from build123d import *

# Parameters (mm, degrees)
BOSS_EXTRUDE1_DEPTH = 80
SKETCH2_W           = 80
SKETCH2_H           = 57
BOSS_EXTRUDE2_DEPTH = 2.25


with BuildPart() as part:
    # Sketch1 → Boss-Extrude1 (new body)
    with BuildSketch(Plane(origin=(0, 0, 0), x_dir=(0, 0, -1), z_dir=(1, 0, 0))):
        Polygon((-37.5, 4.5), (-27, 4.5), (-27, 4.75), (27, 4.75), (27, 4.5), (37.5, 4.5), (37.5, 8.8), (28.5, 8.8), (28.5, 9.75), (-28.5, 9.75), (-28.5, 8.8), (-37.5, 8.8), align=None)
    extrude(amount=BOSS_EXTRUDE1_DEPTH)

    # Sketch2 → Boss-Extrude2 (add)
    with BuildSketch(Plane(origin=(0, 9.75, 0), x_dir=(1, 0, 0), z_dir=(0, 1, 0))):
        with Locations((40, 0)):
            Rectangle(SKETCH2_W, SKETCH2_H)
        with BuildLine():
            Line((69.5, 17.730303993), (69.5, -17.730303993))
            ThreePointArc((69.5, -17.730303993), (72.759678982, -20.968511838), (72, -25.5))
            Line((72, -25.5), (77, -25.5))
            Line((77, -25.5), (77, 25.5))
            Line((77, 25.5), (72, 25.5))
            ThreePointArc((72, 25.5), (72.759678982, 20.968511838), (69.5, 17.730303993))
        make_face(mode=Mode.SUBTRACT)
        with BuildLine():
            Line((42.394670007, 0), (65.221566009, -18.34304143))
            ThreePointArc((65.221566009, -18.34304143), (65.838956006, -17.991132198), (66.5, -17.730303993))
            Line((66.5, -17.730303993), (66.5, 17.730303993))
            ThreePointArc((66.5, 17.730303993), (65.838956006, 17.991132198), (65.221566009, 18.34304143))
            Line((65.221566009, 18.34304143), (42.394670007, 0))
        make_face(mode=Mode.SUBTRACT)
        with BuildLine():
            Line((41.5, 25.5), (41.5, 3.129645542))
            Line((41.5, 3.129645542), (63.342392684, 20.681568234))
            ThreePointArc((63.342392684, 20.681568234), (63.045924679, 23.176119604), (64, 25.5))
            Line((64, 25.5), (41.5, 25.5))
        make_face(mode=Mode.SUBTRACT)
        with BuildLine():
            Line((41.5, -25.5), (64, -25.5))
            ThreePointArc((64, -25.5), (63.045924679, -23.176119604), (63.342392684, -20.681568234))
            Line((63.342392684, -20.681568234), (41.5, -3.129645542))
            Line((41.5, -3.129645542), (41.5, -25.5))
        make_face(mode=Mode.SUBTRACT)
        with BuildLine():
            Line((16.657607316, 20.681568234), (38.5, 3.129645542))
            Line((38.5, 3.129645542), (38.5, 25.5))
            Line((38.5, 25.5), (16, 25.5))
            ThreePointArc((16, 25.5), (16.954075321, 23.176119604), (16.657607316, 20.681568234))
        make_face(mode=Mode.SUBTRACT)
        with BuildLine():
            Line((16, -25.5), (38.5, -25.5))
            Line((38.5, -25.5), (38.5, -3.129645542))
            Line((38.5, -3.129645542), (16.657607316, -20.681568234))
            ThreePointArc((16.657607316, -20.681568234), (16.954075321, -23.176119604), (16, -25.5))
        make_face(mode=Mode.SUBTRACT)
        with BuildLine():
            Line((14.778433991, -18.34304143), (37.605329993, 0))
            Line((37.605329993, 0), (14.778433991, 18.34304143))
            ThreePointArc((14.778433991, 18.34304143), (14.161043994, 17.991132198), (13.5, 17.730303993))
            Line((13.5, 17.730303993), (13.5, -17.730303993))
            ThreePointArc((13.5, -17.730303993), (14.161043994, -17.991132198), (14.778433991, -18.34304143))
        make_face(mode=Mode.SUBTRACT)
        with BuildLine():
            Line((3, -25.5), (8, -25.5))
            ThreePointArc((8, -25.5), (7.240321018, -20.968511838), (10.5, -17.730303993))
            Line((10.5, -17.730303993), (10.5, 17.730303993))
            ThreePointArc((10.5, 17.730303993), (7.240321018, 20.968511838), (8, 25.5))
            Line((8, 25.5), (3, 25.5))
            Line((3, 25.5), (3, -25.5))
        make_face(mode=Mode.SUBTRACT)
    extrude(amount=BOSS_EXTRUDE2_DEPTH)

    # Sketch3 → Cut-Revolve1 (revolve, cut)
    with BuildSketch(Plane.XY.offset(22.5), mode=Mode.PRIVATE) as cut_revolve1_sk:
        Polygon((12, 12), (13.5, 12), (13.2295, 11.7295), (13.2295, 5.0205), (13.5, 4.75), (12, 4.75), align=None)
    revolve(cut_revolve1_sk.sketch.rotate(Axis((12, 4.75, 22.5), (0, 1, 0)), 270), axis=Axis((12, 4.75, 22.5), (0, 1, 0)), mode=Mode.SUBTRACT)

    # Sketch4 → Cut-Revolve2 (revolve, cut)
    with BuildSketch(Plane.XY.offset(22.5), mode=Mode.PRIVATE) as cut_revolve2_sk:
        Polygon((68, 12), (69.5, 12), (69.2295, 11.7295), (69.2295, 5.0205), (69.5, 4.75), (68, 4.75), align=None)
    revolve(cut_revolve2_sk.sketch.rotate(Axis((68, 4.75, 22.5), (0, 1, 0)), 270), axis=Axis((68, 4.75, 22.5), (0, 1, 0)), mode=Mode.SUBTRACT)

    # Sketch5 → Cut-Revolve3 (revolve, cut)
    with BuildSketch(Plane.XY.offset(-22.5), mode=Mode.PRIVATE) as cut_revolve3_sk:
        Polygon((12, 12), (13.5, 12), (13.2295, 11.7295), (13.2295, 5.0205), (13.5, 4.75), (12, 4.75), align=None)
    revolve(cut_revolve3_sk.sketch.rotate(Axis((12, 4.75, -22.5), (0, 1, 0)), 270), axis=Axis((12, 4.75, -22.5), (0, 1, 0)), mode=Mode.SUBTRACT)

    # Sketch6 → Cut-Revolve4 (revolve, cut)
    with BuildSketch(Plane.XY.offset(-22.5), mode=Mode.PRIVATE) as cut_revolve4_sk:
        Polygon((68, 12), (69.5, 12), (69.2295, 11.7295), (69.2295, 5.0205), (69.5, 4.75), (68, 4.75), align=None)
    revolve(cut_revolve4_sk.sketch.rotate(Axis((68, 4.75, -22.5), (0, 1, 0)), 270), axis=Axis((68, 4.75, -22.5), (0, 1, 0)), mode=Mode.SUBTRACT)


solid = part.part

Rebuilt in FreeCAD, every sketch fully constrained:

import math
import FreeCAD as App
import Part
import Sketcher

doc = App.newDocument("Part")
body = doc.addObject("PartDesign::Body", "Body")

# Sketch on YZ plane
sketch1 = body.newObject("Sketcher::SketchObject", "Sketch")
sketch1.AttachmentSupport = (doc.getObject("YZ_Plane"), [""])
sketch1.MapMode = "FlatFace"
sketch1.addGeometry([
    Part.LineSegment(App.Vector(4.5, 37.5, 0), App.Vector(4.5, 27, 0)),  # 0
    Part.LineSegment(App.Vector(4.5, 27, 0), App.Vector(4.75, 27, 0)),  # 1
    Part.LineSegment(App.Vector(4.75, 27, 0), App.Vector(4.75, -27, 0)),  # 2
    Part.LineSegment(App.Vector(4.75, -27, 0), App.Vector(4.5, -27, 0)),  # 3
    Part.LineSegment(App.Vector(4.5, -27, 0), App.Vector(4.5, -37.5, 0)),  # 4
    Part.LineSegment(App.Vector(4.5, -37.5, 0), App.Vector(8.8, -37.5, 0)),  # 5
    Part.LineSegment(App.Vector(8.8, -37.5, 0), App.Vector(8.8, -28.5, 0)),  # 6
    Part.LineSegment(App.Vector(8.8, -28.5, 0), App.Vector(9.75, -28.5, 0)),  # 7
    Part.LineSegment(App.Vector(9.75, -28.5, 0), App.Vector(9.75, 28.5, 0)),  # 8
    Part.LineSegment(App.Vector(9.75, 28.5, 0), App.Vector(8.8, 28.5, 0)),  # 9
    Part.LineSegment(App.Vector(8.8, 28.5, 0), App.Vector(8.8, 37.5, 0)),  # 10
    Part.LineSegment(App.Vector(8.8, 37.5, 0), App.Vector(4.5, 37.5, 0)),  # 11
], False)
sketch1.addConstraint([
    Sketcher.Constraint("Coincident", 0, 2, 1, 1),
    Sketcher.Constraint("Coincident", 1, 2, 2, 1),
    Sketcher.Constraint("Coincident", 2, 2, 3, 1),
    Sketcher.Constraint("Coincident", 3, 2, 4, 1),
    Sketcher.Constraint("Coincident", 4, 2, 5, 1),
    Sketcher.Constraint("Coincident", 5, 2, 6, 1),
    Sketcher.Constraint("Coincident", 6, 2, 7, 1),
    Sketcher.Constraint("Coincident", 7, 2, 8, 1),
    Sketcher.Constraint("Coincident", 8, 2, 9, 1),
    Sketcher.Constraint("Coincident", 9, 2, 10, 1),
    Sketcher.Constraint("Coincident", 10, 2, 11, 1),
    Sketcher.Constraint("Coincident", 11, 2, 0, 1),
    Sketcher.Constraint("Vertical", 0),
    Sketcher.Constraint("Horizontal", 1),
    Sketcher.Constraint("Vertical", 2),
    Sketcher.Constraint("Horizontal", 3),
    Sketcher.Constraint("Vertical", 4),
    Sketcher.Constraint("Horizontal", 5),
    Sketcher.Constraint("Vertical", 6),
    Sketcher.Constraint("Horizontal", 7),
    Sketcher.Constraint("Vertical", 8),
    Sketcher.Constraint("Horizontal", 9),
    Sketcher.Constraint("Vertical", 10),
    Sketcher.Constraint("Horizontal", 11),
    Sketcher.Constraint("Symmetric", 0, 2, 3, 2, -1),
    Sketcher.Constraint("Symmetric", 6, 2, 9, 2, -1),
    Sketcher.Constraint("Equal", 0, 4),
    Sketcher.Constraint("DistanceY", 2, 2, 2, 1, 54.0),
    Sketcher.Constraint("DistanceY", 6, 1, 6, 2, 9.0),
    Sketcher.Constraint("DistanceY", 8, 1, 8, 2, 57.0),
    Sketcher.Constraint("DistanceX", 5, 1, 5, 2, 4.3),
    Sketcher.Constraint("DistanceX", 2, 2, 7, 2, 5.0),
    Sketcher.Constraint("DistanceX", 1, 1, 1, 2, 0.25),
    Sketcher.Constraint("DistanceX", -1, 1, 0, 2, 4.5),
])
pad1 = body.newObject("PartDesign::Pad", "Pad")
pad1.Profile = sketch1
pad1.Length = 80

# Sketch on XZ plane
sketch2 = body.newObject("Sketcher::SketchObject", "Sketch001")
sketch2.AttachmentSupport = (doc.getObject("XZ_Plane"), [""])
sketch2.MapMode = "FlatFace"
sketch2.AttachmentOffset = App.Placement(App.Vector(0, 0, -9.75), App.Rotation())
sketch2.addGeometry([
    Part.LineSegment(App.Vector(0, -28.5, 0), App.Vector(0, 28.5, 0)),  # 0
    Part.LineSegment(App.Vector(0, 28.5, 0), App.Vector(80, 28.5, 0)),  # 1
    Part.LineSegment(App.Vector(80, 28.5, 0), App.Vector(80, -28.5, 0)),  # 2
    Part.LineSegment(App.Vector(80, -28.5, 0), App.Vector(0, -28.5, 0)),  # 3
    Part.LineSegment(App.Vector(38.5, 25.5, 0), App.Vector(16, 25.5, 0)),  # 4
    Part.ArcOfCircle(Part.Circle(App.Vector(12, 22.5, 0), App.Vector(0, 0, 1), 5), math.radians(-21), math.radians(37)),  # 5
    Part.LineSegment(App.Vector(16.7, 20.7, 0), App.Vector(38.5, 3.1, 0)),  # 6
    Part.LineSegment(App.Vector(38.5, 3.1, 0), App.Vector(38.5, 25.5, 0)),  # 7
    Part.LineSegment(App.Vector(64, 25.5, 0), App.Vector(41.5, 25.5, 0)),  # 8
    Part.LineSegment(App.Vector(41.5, 25.5, 0), App.Vector(41.5, 3.1, 0)),  # 9
    Part.LineSegment(App.Vector(41.5, 3.1, 0), App.Vector(63.3, 20.7, 0)),  # 10
    Part.ArcOfCircle(Part.Circle(App.Vector(68, 22.5, 0), App.Vector(0, 0, 1), 5), math.radians(143), math.radians(201)),  # 11
    Part.LineSegment(App.Vector(8, 25.5, 0), App.Vector(3, 25.5, 0)),  # 12
    Part.LineSegment(App.Vector(3, 25.5, 0), App.Vector(3, -25.5, 0)),  # 13
    Part.LineSegment(App.Vector(3, -25.5, 0), App.Vector(8, -25.5, 0)),  # 14
    Part.ArcOfCircle(Part.Circle(App.Vector(12, -22.5, 0), App.Vector(0, 0, 1), 5), math.radians(107), math.radians(217)),  # 15
    Part.LineSegment(App.Vector(10.5, -17.7, 0), App.Vector(10.5, 17.7, 0)),  # 16
    Part.ArcOfCircle(Part.Circle(App.Vector(12, 22.5, 0), App.Vector(0, 0, 1), 5), math.radians(143), math.radians(253)),  # 17
    Part.LineSegment(App.Vector(37.6, 0, 0), App.Vector(14.8, 18.3, 0)),  # 18
    Part.ArcOfCircle(Part.Circle(App.Vector(12, 22.5, 0), App.Vector(0, 0, 1), 5), math.radians(-72.54), math.radians(-56.24)),  # 19
    Part.LineSegment(App.Vector(13.5, 17.7, 0), App.Vector(13.5, -17.7, 0)),  # 20
    Part.ArcOfCircle(Part.Circle(App.Vector(12, -22.5, 0), App.Vector(0, 0, 1), 5), math.radians(56.24), math.radians(72.54)),  # 21
    Part.LineSegment(App.Vector(14.8, -18.3, 0), App.Vector(37.6, 0, 0)),  # 22
    Part.LineSegment(App.Vector(38.5, -3.1, 0), App.Vector(16.7, -20.7, 0)),  # 23
    Part.ArcOfCircle(Part.Circle(App.Vector(12, -22.5, 0), App.Vector(0, 0, 1), 5), math.radians(-37), math.radians(21)),  # 24
    Part.LineSegment(App.Vector(16, -25.5, 0), App.Vector(38.5, -25.5, 0)),  # 25
    Part.LineSegment(App.Vector(38.5, -25.5, 0), App.Vector(38.5, -3.1, 0)),  # 26
    Part.LineSegment(App.Vector(65.2, 18.3, 0), App.Vector(42.4, 0, 0)),  # 27
    Part.LineSegment(App.Vector(42.4, 0, 0), App.Vector(65.2, -18.3, 0)),  # 28
    Part.ArcOfCircle(Part.Circle(App.Vector(68, -22.5, 0), App.Vector(0, 0, 1), 5), math.radians(107.46), math.radians(123.76)),  # 29
    Part.LineSegment(App.Vector(66.5, -17.7, 0), App.Vector(66.5, 17.7, 0)),  # 30
    Part.ArcOfCircle(Part.Circle(App.Vector(68, 22.5, 0), App.Vector(0, 0, 1), 5), math.radians(-123.76), math.radians(-107.46)),  # 31
    Part.LineSegment(App.Vector(69.5, 17.7, 0), App.Vector(69.5, -17.7, 0)),  # 32
    Part.ArcOfCircle(Part.Circle(App.Vector(68, -22.5, 0), App.Vector(0, 0, 1), 5), math.radians(-37), math.radians(73)),  # 33
    Part.LineSegment(App.Vector(72, -25.5, 0), App.Vector(77, -25.5, 0)),  # 34
    Part.LineSegment(App.Vector(77, -25.5, 0), App.Vector(77, 25.5, 0)),  # 35
    Part.LineSegment(App.Vector(77, 25.5, 0), App.Vector(72, 25.5, 0)),  # 36
    Part.ArcOfCircle(Part.Circle(App.Vector(68, 22.5, 0), App.Vector(0, 0, 1), 5), math.radians(-73), math.radians(37)),  # 37
    Part.LineSegment(App.Vector(41.5, -3.1, 0), App.Vector(41.5, -25.5, 0)),  # 38
    Part.LineSegment(App.Vector(41.5, -25.5, 0), App.Vector(64, -25.5, 0)),  # 39
    Part.ArcOfCircle(Part.Circle(App.Vector(68, -22.5, 0), App.Vector(0, 0, 1), 5), math.radians(159), math.radians(217)),  # 40
    Part.LineSegment(App.Vector(63.3, -20.7, 0), App.Vector(41.5, -3.1, 0)),  # 41
], False)
sketch2.addConstraint([
    Sketcher.Constraint("Coincident", 0, 2, 1, 1),
    Sketcher.Constraint("Coincident", 1, 2, 2, 1),
    Sketcher.Constraint("Coincident", 2, 2, 3, 1),
    Sketcher.Constraint("Coincident", 3, 2, 0, 1),
    Sketcher.Constraint("Coincident", 4, 2, 5, 2),
    Sketcher.Constraint("Coincident", 5, 1, 6, 1),
    Sketcher.Constraint("Coincident", 6, 2, 7, 1),
    Sketcher.Constraint("Coincident", 7, 2, 4, 1),
    Sketcher.Constraint("Coincident", 8, 2, 9, 1),
    Sketcher.Constraint("Coincident", 9, 2, 10, 1),
    Sketcher.Constraint("Coincident", 10, 2, 11, 2),
    Sketcher.Constraint("Coincident", 11, 1, 8, 1),
    Sketcher.Constraint("Coincident", 12, 2, 13, 1),
    Sketcher.Constraint("Coincident", 13, 2, 14, 1),
    Sketcher.Constraint("Coincident", 14, 2, 15, 2),
    Sketcher.Constraint("Coincident", 15, 1, 16, 1),
    Sketcher.Constraint("Coincident", 16, 2, 17, 2),
    Sketcher.Constraint("Coincident", 17, 1, 12, 1),
    Sketcher.Constraint("Coincident", 18, 2, 19, 2),
    Sketcher.Constraint("Coincident", 19, 1, 20, 1),
    Sketcher.Constraint("Coincident", 20, 2, 21, 2),
    Sketcher.Constraint("Coincident", 21, 1, 22, 1),
    Sketcher.Constraint("Coincident", 22, 2, 18, 1),
    Sketcher.Constraint("Coincident", 23, 2, 24, 2),
    Sketcher.Constraint("Coincident", 24, 1, 25, 1),
    Sketcher.Constraint("Coincident", 25, 2, 26, 1),
    Sketcher.Constraint("Coincident", 26, 2, 23, 1),
    Sketcher.Constraint("Coincident", 27, 2, 28, 1),
    Sketcher.Constraint("Coincident", 28, 2, 29, 2),
    Sketcher.Constraint("Coincident", 29, 1, 30, 1),
    Sketcher.Constraint("Coincident", 30, 2, 31, 2),
    Sketcher.Constraint("Coincident", 31, 1, 27, 1),
    Sketcher.Constraint("Coincident", 32, 2, 33, 2),
    Sketcher.Constraint("Coincident", 33, 1, 34, 1),
    Sketcher.Constraint("Coincident", 34, 2, 35, 1),
    Sketcher.Constraint("Coincident", 35, 2, 36, 1),
    Sketcher.Constraint("Coincident", 36, 2, 37, 2),
    Sketcher.Constraint("Coincident", 37, 1, 32, 1),
    Sketcher.Constraint("Coincident", 38, 2, 39, 1),
    Sketcher.Constraint("Coincident", 39, 2, 40, 2),
    Sketcher.Constraint("Coincident", 40, 1, 41, 1),
    Sketcher.Constraint("Coincident", 41, 2, 38, 1),
    Sketcher.Constraint("Vertical", 0),
    Sketcher.Constraint("Horizontal", 1),
    Sketcher.Constraint("Vertical", 2),
    Sketcher.Constraint("Horizontal", 3),
    Sketcher.Constraint("Horizontal", 4),
    Sketcher.Constraint("Vertical", 7),
    Sketcher.Constraint("Horizontal", 8),
    Sketcher.Constraint("Vertical", 9),
    Sketcher.Constraint("Horizontal", 12),
    Sketcher.Constraint("Vertical", 13),
    Sketcher.Constraint("Horizontal", 14),
    Sketcher.Constraint("Vertical", 16),
    Sketcher.Constraint("Vertical", 20),
    Sketcher.Constraint("Horizontal", 25),
    Sketcher.Constraint("Vertical", 26),
    Sketcher.Constraint("Vertical", 30),
    Sketcher.Constraint("Vertical", 32),
    Sketcher.Constraint("Horizontal", 34),
    Sketcher.Constraint("Vertical", 35),
    Sketcher.Constraint("Horizontal", 36),
    Sketcher.Constraint("Vertical", 38),
    Sketcher.Constraint("Horizontal", 39),
    Sketcher.Constraint("Coincident", 17, 3, 5, 3),
    Sketcher.Constraint("Coincident", 19, 3, 5, 3),
    Sketcher.Constraint("Coincident", 21, 3, 15, 3),
    Sketcher.Constraint("Coincident", 24, 3, 15, 3),
    Sketcher.Constraint("Coincident", 31, 3, 11, 3),
    Sketcher.Constraint("Coincident", 33, 3, 29, 3),
    Sketcher.Constraint("Coincident", 37, 3, 11, 3),
    Sketcher.Constraint("Coincident", 40, 3, 29, 3),
    Sketcher.Constraint("Equal", 5, 11),
    Sketcher.Constraint("Equal", 11, 15),
    Sketcher.Constraint("Equal", 15, 17),
    Sketcher.Constraint("Equal", 17, 19),
    Sketcher.Constraint("Equal", 19, 21),
    Sketcher.Constraint("Equal", 21, 24),
    Sketcher.Constraint("Equal", 24, 29),
    Sketcher.Constraint("Equal", 29, 31),
    Sketcher.Constraint("Equal", 31, 33),
    Sketcher.Constraint("Equal", 33, 37),
    Sketcher.Constraint("Equal", 37, 40),
    Sketcher.Constraint("Symmetric", 0, 2, 3, 2, -1, 1),
    Sketcher.Constraint("Symmetric", 5, 3, 15, 3, -1),
    Sketcher.Constraint("Symmetric", 11, 3, 29, 3, -1),
    Sketcher.Constraint("Symmetric", 7, 2, 25, 2, -1),
    Sketcher.Constraint("Symmetric", 8, 2, 38, 2, -1),
    Sketcher.Constraint("PointOnObject", 22, 2, -1),
    Sketcher.Constraint("PointOnObject", 27, 2, -1),
    Sketcher.Constraint("Parallel", 6, 18),
    Sketcher.Constraint("Parallel", 10, 22),
    Sketcher.Constraint("Parallel", 22, 23),
    Sketcher.Constraint("Parallel", 23, 27),
    Sketcher.Constraint("Parallel", 18, 28),
    Sketcher.Constraint("Parallel", 28, 41),
    Sketcher.Constraint("Horizontal", 5, 3, 11, 3),
    Sketcher.Constraint("Horizontal", 7, 2, 8, 2),
    Sketcher.Constraint("Horizontal", 6, 2, 9, 2),
    Sketcher.Constraint("Horizontal", 5, 1, 10, 2),
    Sketcher.Constraint("Horizontal", 11, 1, 12, 2),
    Sketcher.Constraint("Horizontal", 16, 2, 19, 1),
    Sketcher.Constraint("Horizontal", 14, 2, 24, 1),
    Sketcher.Constraint("Horizontal", 21, 1, 28, 2),
    Sketcher.Constraint("Horizontal", 20, 2, 29, 1),
    Sketcher.Constraint("Horizontal", 18, 2, 31, 1),
    Sketcher.Constraint("Horizontal", 29, 1, 32, 2),
    Sketcher.Constraint("Horizontal", 25, 2, 33, 1),
    Sketcher.Constraint("Horizontal", 17, 1, 35, 2),
    Sketcher.Constraint("Horizontal", 23, 2, 40, 1),
    Sketcher.Constraint("Vertical", 5, 1, 23, 2),
    Sketcher.Constraint("Equal", 14, 34),
    Sketcher.Constraint("Radius", 5, 5.0),
    Sketcher.Constraint("DistanceX", 1, 1, 1, 2, 80.0),
    Sketcher.Constraint("DistanceX", 12, 2, 12, 1, 5.0),
    Sketcher.Constraint("DistanceY", 0, 1, 0, 2, 57.0),
    Sketcher.Constraint("DistanceY", 13, 2, 13, 1, 51.0),
    Sketcher.Constraint("DistanceX", 4, 2, 4, 1, 22.5),
    Sketcher.Constraint("DistanceX", -1, 1, 5, 3, 12.0),
    Sketcher.Constraint("DistanceX", -1, 1, 11, 3, 68.0),
    Sketcher.Constraint("DistanceX", -1, 1, 4, 2, 16.0),
    Sketcher.Constraint("DistanceX", 16, 2, 19, 1, 3.0),
    Sketcher.Constraint("Distance", 6, 28.020709),
    Sketcher.Constraint("DistanceY", 7, 1, 7, 2, 22.370354),
    Sketcher.Constraint("DistanceY", -1, 1, 18, 2, 18.343041),
])
pad2 = body.newObject("PartDesign::Pad", "Pad001")
pad2.Profile = sketch2
pad2.Length = 2.25
pad2.Reversed = True

# Sketch on XY plane
sketch3 = body.newObject("Sketcher::SketchObject", "Sketch002")
sketch3.AttachmentSupport = (doc.getObject("XY_Plane"), [""])
sketch3.MapMode = "FlatFace"
sketch3.AttachmentOffset = App.Placement(App.Vector(0, 0, 22.5), App.Rotation())
sketch3.addGeometry([
    Part.LineSegment(App.Vector(13.5, 12, 0), App.Vector(12, 12, 0)),  # 0
    Part.LineSegment(App.Vector(12, 12, 0), App.Vector(12, 4.75, 0)),  # 1
    Part.LineSegment(App.Vector(12, 4.75, 0), App.Vector(13.5, 4.75, 0)),  # 2
    Part.LineSegment(App.Vector(13.5, 4.75, 0), App.Vector(13.23, 5.02, 0)),  # 3
    Part.LineSegment(App.Vector(13.23, 5.02, 0), App.Vector(13.23, 11.73, 0)),  # 4
    Part.LineSegment(App.Vector(13.23, 11.73, 0), App.Vector(13.5, 12, 0)),  # 5
], False)
sketch3.addGeometry(Part.LineSegment(App.Vector(12, 4.75, 0), App.Vector(12, 12, 0)), True)  # axis
sketch3.addConstraint([
    Sketcher.Constraint("Coincident", 0, 2, 1, 1),
    Sketcher.Constraint("Coincident", 1, 2, 2, 1),
    Sketcher.Constraint("Coincident", 2, 2, 3, 1),
    Sketcher.Constraint("Coincident", 3, 2, 4, 1),
    Sketcher.Constraint("Coincident", 4, 2, 5, 1),
    Sketcher.Constraint("Coincident", 5, 2, 0, 1),
    Sketcher.Constraint("Horizontal", 0),
    Sketcher.Constraint("Vertical", 1),
    Sketcher.Constraint("Horizontal", 2),
    Sketcher.Constraint("Vertical", 4),
    Sketcher.Constraint("Vertical", 6),
    Sketcher.Constraint("Coincident", 6, 1, 1, 2),
    Sketcher.Constraint("Perpendicular", 3, 5),
    Sketcher.Constraint("Horizontal", 5, 2, 6, 2),
    Sketcher.Constraint("Vertical", 2, 2, 5, 2),
    Sketcher.Constraint("Equal", 3, 5),
    Sketcher.Constraint("DistanceX", 0, 2, 0, 1, 1.5),
    Sketcher.Constraint("DistanceX", -1, 1, 0, 2, 12.0),
    Sketcher.Constraint("DistanceY", -1, 1, 0, 2, 12.0),
    Sketcher.Constraint("DistanceY", 1, 2, 1, 1, 7.25),
    Sketcher.Constraint("DistanceY", 4, 1, 4, 2, 6.709),
])
groove = body.newObject("PartDesign::Groove", "Groove")
groove.Profile = sketch3
groove.ReferenceAxis = (sketch3, ["Axis0"])
groove.Angle = 360

# Sketch on XY plane
sketch4 = body.newObject("Sketcher::SketchObject", "Sketch003")
sketch4.AttachmentSupport = (doc.getObject("XY_Plane"), [""])
sketch4.MapMode = "FlatFace"
sketch4.AttachmentOffset = App.Placement(App.Vector(0, 0, 22.5), App.Rotation())
sketch4.addGeometry([
    Part.LineSegment(App.Vector(69.5, 12, 0), App.Vector(68, 12, 0)),  # 0
    Part.LineSegment(App.Vector(68, 12, 0), App.Vector(68, 4.75, 0)),  # 1
    Part.LineSegment(App.Vector(68, 4.75, 0), App.Vector(69.5, 4.75, 0)),  # 2
    Part.LineSegment(App.Vector(69.5, 4.75, 0), App.Vector(69.23, 5.02, 0)),  # 3
    Part.LineSegment(App.Vector(69.23, 5.02, 0), App.Vector(69.23, 11.73, 0)),  # 4
    Part.LineSegment(App.Vector(69.23, 11.73, 0), App.Vector(69.5, 12, 0)),  # 5
], False)
sketch4.addGeometry(Part.LineSegment(App.Vector(68, 4.75, 0), App.Vector(68, 12, 0)), True)  # axis
sketch4.addConstraint([
    Sketcher.Constraint("Coincident", 0, 2, 1, 1),
    Sketcher.Constraint("Coincident", 1, 2, 2, 1),
    Sketcher.Constraint("Coincident", 2, 2, 3, 1),
    Sketcher.Constraint("Coincident", 3, 2, 4, 1),
    Sketcher.Constraint("Coincident", 4, 2, 5, 1),
    Sketcher.Constraint("Coincident", 5, 2, 0, 1),
    Sketcher.Constraint("Horizontal", 0),
    Sketcher.Constraint("Vertical", 1),
    Sketcher.Constraint("Horizontal", 2),
    Sketcher.Constraint("Vertical", 4),
    Sketcher.Constraint("Vertical", 6),
    Sketcher.Constraint("Coincident", 6, 1, 1, 2),
    Sketcher.Constraint("Perpendicular", 3, 5),
    Sketcher.Constraint("Horizontal", 5, 2, 6, 2),
    Sketcher.Constraint("Vertical", 2, 2, 5, 2),
    Sketcher.Constraint("Equal", 3, 5),
    Sketcher.Constraint("DistanceX", 0, 2, 0, 1, 1.5),
    Sketcher.Constraint("DistanceX", -1, 1, 0, 2, 68.0),
    Sketcher.Constraint("DistanceY", -1, 1, 0, 2, 12.0),
    Sketcher.Constraint("DistanceY", 1, 2, 1, 1, 7.25),
    Sketcher.Constraint("DistanceY", 4, 1, 4, 2, 6.709),
])
groove2 = body.newObject("PartDesign::Groove", "Groove001")
groove2.Profile = sketch4
groove2.ReferenceAxis = (sketch4, ["Axis0"])
groove2.Angle = 360

# Sketch on XY plane
sketch5 = body.newObject("Sketcher::SketchObject", "Sketch004")
sketch5.AttachmentSupport = (doc.getObject("XY_Plane"), [""])
sketch5.MapMode = "FlatFace"
sketch5.AttachmentOffset = App.Placement(App.Vector(0, 0, -22.5), App.Rotation())
sketch5.addGeometry([
    Part.LineSegment(App.Vector(13.5, 12, 0), App.Vector(12, 12, 0)),  # 0
    Part.LineSegment(App.Vector(12, 12, 0), App.Vector(12, 4.75, 0)),  # 1
    Part.LineSegment(App.Vector(12, 4.75, 0), App.Vector(13.5, 4.75, 0)),  # 2
    Part.LineSegment(App.Vector(13.5, 4.75, 0), App.Vector(13.23, 5.02, 0)),  # 3
    Part.LineSegment(App.Vector(13.23, 5.02, 0), App.Vector(13.23, 11.73, 0)),  # 4
    Part.LineSegment(App.Vector(13.23, 11.73, 0), App.Vector(13.5, 12, 0)),  # 5
], False)
sketch5.addGeometry(Part.LineSegment(App.Vector(12, 4.75, 0), App.Vector(12, 12, 0)), True)  # axis
sketch5.addConstraint([
    Sketcher.Constraint("Coincident", 0, 2, 1, 1),
    Sketcher.Constraint("Coincident", 1, 2, 2, 1),
    Sketcher.Constraint("Coincident", 2, 2, 3, 1),
    Sketcher.Constraint("Coincident", 3, 2, 4, 1),
    Sketcher.Constraint("Coincident", 4, 2, 5, 1),
    Sketcher.Constraint("Coincident", 5, 2, 0, 1),
    Sketcher.Constraint("Horizontal", 0),
    Sketcher.Constraint("Vertical", 1),
    Sketcher.Constraint("Horizontal", 2),
    Sketcher.Constraint("Vertical", 4),
    Sketcher.Constraint("Vertical", 6),
    Sketcher.Constraint("Coincident", 6, 1, 1, 2),
    Sketcher.Constraint("Perpendicular", 3, 5),
    Sketcher.Constraint("Horizontal", 5, 2, 6, 2),
    Sketcher.Constraint("Vertical", 2, 2, 5, 2),
    Sketcher.Constraint("Equal", 3, 5),
    Sketcher.Constraint("DistanceX", 0, 2, 0, 1, 1.5),
    Sketcher.Constraint("DistanceX", -1, 1, 0, 2, 12.0),
    Sketcher.Constraint("DistanceY", -1, 1, 0, 2, 12.0),
    Sketcher.Constraint("DistanceY", 1, 2, 1, 1, 7.25),
    Sketcher.Constraint("DistanceY", 4, 1, 4, 2, 6.709),
])
groove3 = body.newObject("PartDesign::Groove", "Groove002")
groove3.Profile = sketch5
groove3.ReferenceAxis = (sketch5, ["Axis0"])
groove3.Angle = 360

# Sketch on XY plane
sketch6 = body.newObject("Sketcher::SketchObject", "Sketch005")
sketch6.AttachmentSupport = (doc.getObject("XY_Plane"), [""])
sketch6.MapMode = "FlatFace"
sketch6.AttachmentOffset = App.Placement(App.Vector(0, 0, -22.5), App.Rotation())
sketch6.addGeometry([
    Part.LineSegment(App.Vector(69.5, 12, 0), App.Vector(68, 12, 0)),  # 0
    Part.LineSegment(App.Vector(68, 12, 0), App.Vector(68, 4.75, 0)),  # 1
    Part.LineSegment(App.Vector(68, 4.75, 0), App.Vector(69.5, 4.75, 0)),  # 2
    Part.LineSegment(App.Vector(69.5, 4.75, 0), App.Vector(69.23, 5.02, 0)),  # 3
    Part.LineSegment(App.Vector(69.23, 5.02, 0), App.Vector(69.23, 11.73, 0)),  # 4
    Part.LineSegment(App.Vector(69.23, 11.73, 0), App.Vector(69.5, 12, 0)),  # 5
], False)
sketch6.addGeometry(Part.LineSegment(App.Vector(68, 4.75, 0), App.Vector(68, 12, 0)), True)  # axis
sketch6.addConstraint([
    Sketcher.Constraint("Coincident", 0, 2, 1, 1),
    Sketcher.Constraint("Coincident", 1, 2, 2, 1),
    Sketcher.Constraint("Coincident", 2, 2, 3, 1),
    Sketcher.Constraint("Coincident", 3, 2, 4, 1),
    Sketcher.Constraint("Coincident", 4, 2, 5, 1),
    Sketcher.Constraint("Coincident", 5, 2, 0, 1),
    Sketcher.Constraint("Horizontal", 0),
    Sketcher.Constraint("Vertical", 1),
    Sketcher.Constraint("Horizontal", 2),
    Sketcher.Constraint("Vertical", 4),
    Sketcher.Constraint("Vertical", 6),
    Sketcher.Constraint("Coincident", 6, 1, 1, 2),
    Sketcher.Constraint("Perpendicular", 3, 5),
    Sketcher.Constraint("Horizontal", 5, 2, 6, 2),
    Sketcher.Constraint("Vertical", 2, 2, 5, 2),
    Sketcher.Constraint("Equal", 3, 5),
    Sketcher.Constraint("DistanceX", 0, 2, 0, 1, 1.5),
    Sketcher.Constraint("DistanceX", -1, 1, 0, 2, 68.0),
    Sketcher.Constraint("DistanceY", -1, 1, 0, 2, 12.0),
    Sketcher.Constraint("DistanceY", 1, 2, 1, 1, 7.25),
    Sketcher.Constraint("DistanceY", 4, 1, 4, 2, 6.709),
])
groove4 = body.newObject("PartDesign::Groove", "Groove003")
groove4.Profile = sketch6
groove4.ReferenceAxis = (sketch6, ["Axis0"])
groove4.Angle = 360

doc.recompute()
